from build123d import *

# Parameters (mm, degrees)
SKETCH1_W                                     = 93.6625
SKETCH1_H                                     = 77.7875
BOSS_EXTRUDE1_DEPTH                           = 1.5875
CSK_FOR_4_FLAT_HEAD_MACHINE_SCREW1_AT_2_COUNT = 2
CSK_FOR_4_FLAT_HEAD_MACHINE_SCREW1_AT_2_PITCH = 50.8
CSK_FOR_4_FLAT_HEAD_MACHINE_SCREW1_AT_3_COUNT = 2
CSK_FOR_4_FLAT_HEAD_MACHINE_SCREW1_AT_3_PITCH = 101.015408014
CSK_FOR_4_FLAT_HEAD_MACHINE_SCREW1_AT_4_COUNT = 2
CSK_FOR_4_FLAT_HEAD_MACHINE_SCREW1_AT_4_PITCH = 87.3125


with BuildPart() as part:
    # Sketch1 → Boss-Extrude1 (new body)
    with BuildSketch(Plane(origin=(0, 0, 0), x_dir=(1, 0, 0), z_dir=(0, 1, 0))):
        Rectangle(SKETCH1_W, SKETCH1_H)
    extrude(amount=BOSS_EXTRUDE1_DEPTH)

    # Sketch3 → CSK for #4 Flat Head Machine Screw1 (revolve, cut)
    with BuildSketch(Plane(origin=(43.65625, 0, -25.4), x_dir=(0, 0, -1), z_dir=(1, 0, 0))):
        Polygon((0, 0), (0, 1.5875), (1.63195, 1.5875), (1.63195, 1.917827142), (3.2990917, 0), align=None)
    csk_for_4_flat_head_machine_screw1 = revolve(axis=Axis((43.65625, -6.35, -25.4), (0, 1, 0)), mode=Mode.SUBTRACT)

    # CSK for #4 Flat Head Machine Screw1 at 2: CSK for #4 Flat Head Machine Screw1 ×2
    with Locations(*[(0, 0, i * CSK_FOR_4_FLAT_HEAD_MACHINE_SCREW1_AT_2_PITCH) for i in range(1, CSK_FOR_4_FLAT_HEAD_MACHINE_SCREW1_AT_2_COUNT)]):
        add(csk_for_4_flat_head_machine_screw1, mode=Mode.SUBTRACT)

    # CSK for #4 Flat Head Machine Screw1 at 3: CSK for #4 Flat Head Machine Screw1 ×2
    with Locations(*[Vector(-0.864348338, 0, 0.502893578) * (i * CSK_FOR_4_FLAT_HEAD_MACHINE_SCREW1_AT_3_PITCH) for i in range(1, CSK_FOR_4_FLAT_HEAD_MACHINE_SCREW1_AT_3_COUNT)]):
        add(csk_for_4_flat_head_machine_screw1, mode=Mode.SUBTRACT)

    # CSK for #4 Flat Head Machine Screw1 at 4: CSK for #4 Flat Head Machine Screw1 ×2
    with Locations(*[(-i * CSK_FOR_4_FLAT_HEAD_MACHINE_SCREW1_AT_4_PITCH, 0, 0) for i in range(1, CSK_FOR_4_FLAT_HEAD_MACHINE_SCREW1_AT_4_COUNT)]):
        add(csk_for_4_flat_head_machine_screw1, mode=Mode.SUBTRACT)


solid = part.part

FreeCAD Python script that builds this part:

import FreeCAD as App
import Part
import Sketcher
Q = App.Units.Quantity


def add_polygon(sketch, points):
    """Adds a closed chain of lines whose ends are joined by coincident constraints."""
    first, n = sketch.GeometryCount, len(points)
    for a, b in zip(points, points[1:] + points[:1]):
        sketch.addGeometry(Part.LineSegment(App.Vector(*a, 0), App.Vector(*b, 0)), False)
    for i in range(n):
        sketch.addConstraint(Sketcher.Constraint("Coincident", first + i, 2, first + (i + 1) % n, 1))

doc = App.newDocument("Part")
body = doc.addObject("PartDesign::Body", "Body")

# Sketch on XZ plane
sketch1 = body.newObject("Sketcher::SketchObject", "Sketch")
sketch1.AttachmentSupport = (doc.getObject("XZ_Plane"), [""])
sketch1.MapMode = "FlatFace"
add_polygon(sketch1, [(-47, -39), (-47, 39), (47, 39), (47, -39)])  # lines 0-3
sketch1.addConstraint([
    Sketcher.Constraint("Vertical", 0),
    Sketcher.Constraint("Horizontal", 1),
    Sketcher.Constraint("Vertical", 2),
    Sketcher.Constraint("Horizontal", 3),
    Sketcher.Constraint("Symmetric", 0, 2, 2, 2, -1, 1),
    Sketcher.Constraint("DistanceX", 1, 1, 1, 2, Q("3.6875 in")),
    Sketcher.Constraint("DistanceY", 0, 1, 0, 2, Q("3.0625 in")),
])
pad1 = body.newObject("PartDesign::Pad", "Pad")
pad1.Profile = sketch1
pad1.Length = Q("0.0625 in")
pad1.Reversed = True

# Sketch on YZ plane
sketch2 = body.newObject("Sketcher::SketchObject", "Sketch001")
sketch2.AttachmentSupport = (doc.getObject("YZ_Plane"), [""])
sketch2.MapMode = "FlatFace"
sketch2.AttachmentOffset = App.Placement(App.Vector(0, 0, 1.71875 * 25.4), App.Rotation())
add_polygon(sketch2, [(1.59, -25.4), (0, -25.4), (0, -28.7), (1.92, -27.03), (1.59, -27.03)])  # lines 0-4
sketch2.addGeometry(Part.LineSegment(App.Vector(0, -25.4, 0), App.Vector(1.92, -25.4, 0)), True)  # axis
sketch2.addConstraint([
    Sketcher.Constraint("Horizontal", 0),
    Sketcher.Constraint("Vertical", 1),
    Sketcher.Constraint("Horizontal", 3),
    Sketcher.Constraint("Vertical", 4),
    Sketcher.Constraint("Horizontal", 5),
    Sketcher.Constraint("Coincident", 5, 1, 0, 2),
    Sketcher.Constraint("PointOnObject", 0, 2, -2),
    Sketcher.Constraint("Vertical", 2, 2, 5, 2),
    Sketcher.Constraint("DistanceY", 0, 2, -1, 1, Q("1 in")),
    Sketcher.Constraint("Angle", 2, Q("41 deg")),
    Sketcher.Constraint("DistanceX", 0, 2, 0, 1, Q("0.0625 in")),
    Sketcher.Constraint("DistanceY", 1, 2, 1, 1, Q("3.299092 mm")),
    Sketcher.Constraint("DistanceY", 4, 1, 4, 2, Q("1.63195 mm")),
])
groove = body.newObject("PartDesign::Groove", "Groove")
groove.Profile = sketch2
groove.ReferenceAxis = (sketch2, ["Axis0"])
groove.Angle = 360
doc.recompute()

linearpattern = body.newObject("PartDesign::LinearPattern", "LinearPattern")
linearpattern.Originals = [groove]
linearpattern.Direction = (doc.getObject("Z_Axis"), [""])
linearpattern.Mode = "offset"
linearpattern.Offset = Q("2 in")
linearpattern.Occurrences = 2
body.Tip = linearpattern
doc.recompute()

datumline = body.newObject("PartDesign::Line", "DatumLine")
datumline.Placement = App.Placement(App.Vector(0, 0, 0), App.Rotation(App.Vector(0, 0, 1), App.Vector(-0.864348338, 0, 0.502893578)))
linearpattern2 = body.newObject("PartDesign::LinearPattern", "LinearPattern001")
linearpattern2.Originals = [groove]
linearpattern2.Direction = (datumline, [""])
linearpattern2.Mode = "offset"
linearpattern2.Offset = 101.015408
linearpattern2.Occurrences = 2
body.Tip = linearpattern2
doc.recompute()

linearpattern3 = body.newObject("PartDesign::LinearPattern", "LinearPattern002")
linearpattern3.Originals = [groove]
linearpattern3.Direction = (doc.getObject("X_Axis"), [""])
linearpattern3.Mode = "offset"
linearpattern3.Offset = Q("3.4375 in")
linearpattern3.Occurrences = 2
linearpattern3.Reversed = True
body.Tip = linearpattern3

doc.recompute()
